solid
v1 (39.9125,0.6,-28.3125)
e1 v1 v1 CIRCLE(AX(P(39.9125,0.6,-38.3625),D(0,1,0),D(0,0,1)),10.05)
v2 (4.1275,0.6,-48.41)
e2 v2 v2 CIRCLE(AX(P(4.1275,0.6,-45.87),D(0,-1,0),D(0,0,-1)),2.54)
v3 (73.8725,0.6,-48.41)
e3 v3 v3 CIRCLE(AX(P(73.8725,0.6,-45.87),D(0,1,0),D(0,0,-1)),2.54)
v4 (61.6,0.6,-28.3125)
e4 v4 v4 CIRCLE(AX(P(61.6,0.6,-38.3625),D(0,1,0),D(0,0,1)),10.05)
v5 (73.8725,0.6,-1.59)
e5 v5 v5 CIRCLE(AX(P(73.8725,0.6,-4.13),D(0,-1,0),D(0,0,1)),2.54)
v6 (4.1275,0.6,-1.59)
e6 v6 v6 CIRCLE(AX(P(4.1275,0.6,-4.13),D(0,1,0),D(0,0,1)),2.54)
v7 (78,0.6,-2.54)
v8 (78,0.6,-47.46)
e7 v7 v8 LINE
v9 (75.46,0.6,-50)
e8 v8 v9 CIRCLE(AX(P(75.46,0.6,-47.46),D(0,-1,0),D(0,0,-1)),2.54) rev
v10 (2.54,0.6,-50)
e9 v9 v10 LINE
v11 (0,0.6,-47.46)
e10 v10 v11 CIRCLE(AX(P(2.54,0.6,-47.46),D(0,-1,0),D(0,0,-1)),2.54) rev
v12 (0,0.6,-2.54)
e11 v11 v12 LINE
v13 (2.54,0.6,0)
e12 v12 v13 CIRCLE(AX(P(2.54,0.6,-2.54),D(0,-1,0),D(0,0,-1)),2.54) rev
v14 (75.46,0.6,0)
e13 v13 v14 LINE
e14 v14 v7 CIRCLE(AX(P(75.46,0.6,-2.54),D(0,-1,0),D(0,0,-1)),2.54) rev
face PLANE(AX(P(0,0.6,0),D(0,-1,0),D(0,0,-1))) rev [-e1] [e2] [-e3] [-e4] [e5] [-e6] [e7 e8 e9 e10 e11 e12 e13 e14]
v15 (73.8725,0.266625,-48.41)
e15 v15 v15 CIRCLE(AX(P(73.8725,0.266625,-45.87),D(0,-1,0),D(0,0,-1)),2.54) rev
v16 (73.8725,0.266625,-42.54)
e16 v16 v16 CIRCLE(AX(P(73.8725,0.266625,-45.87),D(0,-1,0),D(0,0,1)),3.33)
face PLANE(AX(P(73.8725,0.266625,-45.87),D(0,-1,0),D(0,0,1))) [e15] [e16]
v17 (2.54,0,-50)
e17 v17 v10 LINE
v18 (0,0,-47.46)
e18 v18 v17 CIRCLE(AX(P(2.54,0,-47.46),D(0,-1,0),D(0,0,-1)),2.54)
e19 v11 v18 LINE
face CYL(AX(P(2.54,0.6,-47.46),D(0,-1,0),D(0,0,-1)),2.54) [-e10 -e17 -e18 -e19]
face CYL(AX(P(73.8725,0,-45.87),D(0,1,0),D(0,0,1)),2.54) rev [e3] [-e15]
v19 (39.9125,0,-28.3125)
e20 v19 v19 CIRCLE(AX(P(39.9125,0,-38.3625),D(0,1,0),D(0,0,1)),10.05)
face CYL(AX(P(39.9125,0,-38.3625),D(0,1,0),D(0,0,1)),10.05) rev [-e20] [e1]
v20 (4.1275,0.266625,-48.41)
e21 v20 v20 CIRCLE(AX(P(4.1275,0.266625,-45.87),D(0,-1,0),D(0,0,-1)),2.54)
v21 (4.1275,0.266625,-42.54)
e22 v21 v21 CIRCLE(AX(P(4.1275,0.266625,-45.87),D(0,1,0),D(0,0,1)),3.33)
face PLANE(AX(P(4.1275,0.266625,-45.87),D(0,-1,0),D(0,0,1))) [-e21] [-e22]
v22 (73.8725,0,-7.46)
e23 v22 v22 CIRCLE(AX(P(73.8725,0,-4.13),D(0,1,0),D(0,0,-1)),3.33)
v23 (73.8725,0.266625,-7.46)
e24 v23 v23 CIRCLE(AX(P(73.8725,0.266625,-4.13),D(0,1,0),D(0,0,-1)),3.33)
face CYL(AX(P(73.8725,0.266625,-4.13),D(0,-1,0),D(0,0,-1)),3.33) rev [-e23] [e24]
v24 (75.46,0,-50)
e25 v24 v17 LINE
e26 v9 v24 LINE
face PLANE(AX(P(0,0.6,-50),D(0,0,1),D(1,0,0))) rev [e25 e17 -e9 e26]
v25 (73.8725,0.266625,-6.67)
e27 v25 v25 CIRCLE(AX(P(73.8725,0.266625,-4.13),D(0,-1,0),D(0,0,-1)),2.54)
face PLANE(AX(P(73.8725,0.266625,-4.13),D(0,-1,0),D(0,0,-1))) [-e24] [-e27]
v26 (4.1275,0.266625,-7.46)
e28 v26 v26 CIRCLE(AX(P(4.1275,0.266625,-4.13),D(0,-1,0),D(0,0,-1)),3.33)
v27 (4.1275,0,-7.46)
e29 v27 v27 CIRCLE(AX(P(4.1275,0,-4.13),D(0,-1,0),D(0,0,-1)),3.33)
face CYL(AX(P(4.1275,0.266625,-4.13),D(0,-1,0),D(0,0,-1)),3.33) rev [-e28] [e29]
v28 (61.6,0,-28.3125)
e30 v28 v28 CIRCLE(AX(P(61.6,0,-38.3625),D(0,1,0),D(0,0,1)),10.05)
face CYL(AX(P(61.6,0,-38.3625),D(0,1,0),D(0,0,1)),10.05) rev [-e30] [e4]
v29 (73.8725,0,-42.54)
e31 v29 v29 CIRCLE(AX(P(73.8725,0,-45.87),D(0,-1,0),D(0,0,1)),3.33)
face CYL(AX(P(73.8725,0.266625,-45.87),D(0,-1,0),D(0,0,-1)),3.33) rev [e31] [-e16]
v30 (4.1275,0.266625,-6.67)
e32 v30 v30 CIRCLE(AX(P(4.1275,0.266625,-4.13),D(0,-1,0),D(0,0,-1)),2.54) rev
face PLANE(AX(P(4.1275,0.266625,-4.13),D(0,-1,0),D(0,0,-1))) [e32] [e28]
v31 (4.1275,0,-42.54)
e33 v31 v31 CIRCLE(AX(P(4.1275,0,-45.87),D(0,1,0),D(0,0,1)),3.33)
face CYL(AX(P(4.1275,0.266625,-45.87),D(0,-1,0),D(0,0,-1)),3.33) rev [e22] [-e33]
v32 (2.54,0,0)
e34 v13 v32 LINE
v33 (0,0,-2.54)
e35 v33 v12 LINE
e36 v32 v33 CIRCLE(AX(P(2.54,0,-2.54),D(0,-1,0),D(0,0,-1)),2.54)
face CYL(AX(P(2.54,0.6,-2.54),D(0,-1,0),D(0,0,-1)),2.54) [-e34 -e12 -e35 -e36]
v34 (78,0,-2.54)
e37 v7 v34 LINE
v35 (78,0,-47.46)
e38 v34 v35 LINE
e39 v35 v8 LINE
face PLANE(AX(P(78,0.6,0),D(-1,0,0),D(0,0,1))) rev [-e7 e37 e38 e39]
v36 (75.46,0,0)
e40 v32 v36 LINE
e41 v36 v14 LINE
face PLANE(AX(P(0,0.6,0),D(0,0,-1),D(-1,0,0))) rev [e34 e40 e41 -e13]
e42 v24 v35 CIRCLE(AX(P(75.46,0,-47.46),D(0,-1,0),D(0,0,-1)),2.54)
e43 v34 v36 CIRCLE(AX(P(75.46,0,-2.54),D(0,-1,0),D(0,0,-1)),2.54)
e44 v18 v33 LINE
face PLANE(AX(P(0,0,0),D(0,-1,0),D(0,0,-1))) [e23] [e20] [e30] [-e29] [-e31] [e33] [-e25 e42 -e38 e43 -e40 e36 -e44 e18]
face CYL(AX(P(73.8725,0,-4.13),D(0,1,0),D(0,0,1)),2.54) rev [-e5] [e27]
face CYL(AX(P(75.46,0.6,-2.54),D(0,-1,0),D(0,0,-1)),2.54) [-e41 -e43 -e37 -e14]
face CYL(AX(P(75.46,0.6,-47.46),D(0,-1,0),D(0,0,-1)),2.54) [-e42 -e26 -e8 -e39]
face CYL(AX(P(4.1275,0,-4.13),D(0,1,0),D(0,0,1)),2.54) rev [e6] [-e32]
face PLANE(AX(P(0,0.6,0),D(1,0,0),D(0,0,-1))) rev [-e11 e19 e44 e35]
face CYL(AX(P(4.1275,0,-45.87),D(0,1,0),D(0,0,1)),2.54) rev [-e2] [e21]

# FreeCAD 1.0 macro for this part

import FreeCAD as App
import Part
import Sketcher
from FreeCAD import Vector


def edges_at(feature, points):
    """Names of the edges that pass closest to the given points."""
    edges = feature.Shape.Edges
    near = lambda p: min(range(len(edges)), key=lambda i: edges[i].distToShape(Part.Vertex(*p))[0])
    return sorted({f"Edge{near(p) + 1}" for p in points})


def add_polygon(sketch, points):
    """Adds a closed chain of lines whose ends are joined by coincident constraints."""
    first, n = sketch.GeometryCount, len(points)
    for a, b in zip(points, points[1:] + points[:1]):
        sketch.addGeometry(Part.LineSegment(App.Vector(*a, 0), App.Vector(*b, 0)), False)
    for i in range(n):
        sketch.addConstraint(Sketcher.Constraint("Coincident", first + i, 2, first + (i + 1) % n, 1))

doc = App.newDocument("Part")
body = doc.addObject("PartDesign::Body", "Body")

sketch1 = body.newObject("Sketcher::SketchObject", "Sketch")
sketch1.AttachmentSupport = (doc.getObject("XZ_Plane"), [""])
sketch1.MapMode = "FlatFace"
add_polygon(sketch1, [(0, -50), (0, 0), (78, 0), (78, -50)])
sketch1.addConstraint(Sketcher.Constraint("Vertical", 0))
sketch1.addConstraint(Sketcher.Constraint("Horizontal", 1))
sketch1.addConstraint(Sketcher.Constraint("Vertical", 2))
sketch1.addConstraint(Sketcher.Constraint("Horizontal", 3))
sketch1.addConstraint(Sketcher.Constraint("Coincident", 0, 2, -1, 1))
sketch1.addConstraint(Sketcher.Constraint("DistanceX", 1, 1, 1, 2, 78.0))
sketch1.addConstraint(Sketcher.Constraint("DistanceY", 0, 1, 0, 2, 50.0))
pad1 = body.newObject("PartDesign::Pad", "Pad")
pad1.Profile = sketch1
pad1.Length = 0.6
pad1.Reversed = True
doc.recompute()

fillet = body.newObject("PartDesign::Fillet", "Fillet")
fillet.Base = (pad1, edges_at(pad1, [
    (0, 0.3, -50),
    (78, 0.3, -50),
    (78, 0.3, 0),
    (0, 0.3, 0),
]))
fillet.Radius = 2.54

sketch2 = body.newObject("Sketcher::SketchObject", "Sketch001")
sketch2.AttachmentSupport = (doc.getObject("XZ_Plane"), [""])
sketch2.MapMode = "FlatFace"
sketch2.AttachmentOffset = App.Placement(Vector(0, 0, -0.6), App.Rotation())
sketch2.addGeometry(Part.Circle(Vector(4.1, -4.1, 0), Vector(0, 0, 1), 2.5), False)
sketch2.addConstraint(Sketcher.Constraint("Diameter", 0, 5.08))
sketch2.addConstraint(Sketcher.Constraint("DistanceY", 0, 3, -1, 1, 4.13))
sketch2.addConstraint(Sketcher.Constraint("DistanceX", -1, 1, 0, 3, 4.1275))
pocket1 = body.newObject("PartDesign::Pocket", "Pocket")
pocket1.Profile = sketch2
pocket1.Type = "ThroughAll"
pocket1.Reversed = True

sketch3 = body.newObject("Sketcher::SketchObject", "Sketch002")
sketch3.AttachmentSupport = (doc.getObject("XZ_Plane"), [""])
sketch3.MapMode = "FlatFace"
sketch3.addGeometry(Part.Circle(Vector(4.1, -4.1, 0), Vector(0, 0, 1), 3.3), False)
sketch3.addConstraint(Sketcher.Constraint("Diameter", 0, 6.66))
sketch3.addConstraint(Sketcher.Constraint("DistanceY", 0, 3, -1, 1, 4.13))
sketch3.addConstraint(Sketcher.Constraint("DistanceX", -1, 1, 0, 3, 4.1275))
pocket2 = body.newObject("PartDesign::Pocket", "Pocket001")
pocket2.Profile = sketch3
pocket2.Length = 0.266625
doc.recompute()

datumplane = body.newObject("PartDesign::Plane", "DatumPlane")
datumplane.AttachmentSupport = (doc.getObject("XY_Plane"), [""])
datumplane.MapMode = "FlatFace"
datumplane.AttachmentOffset = App.Placement(Vector(0, 0, -25), App.Rotation())
mirrored = body.newObject("PartDesign::Mirrored", "Mirrored")
mirrored.Originals = [pocket1, pocket2]
mirrored.MirrorPlane = (datumplane, [""])
body.Tip = mirrored
doc.recompute()

datumplane2 = body.newObject("PartDesign::Plane", "DatumPlane001")
datumplane2.AttachmentSupport = (doc.getObject("YZ_Plane"), [""])
datumplane2.MapMode = "FlatFace"
datumplane2.AttachmentOffset = App.Placement(Vector(0, 0, 39), App.Rotation())
mirrored2 = body.newObject("PartDesign::Mirrored", "Mirrored001")
mirrored2.Originals = [pocket1, pocket2]
mirrored2.MirrorPlane = (datumplane2, [""])
body.Tip = mirrored2

sketch4 = body.newObject("Sketcher::SketchObject", "Sketch003")
sketch4.AttachmentSupport = (doc.getObject("XZ_Plane"), [""])
sketch4.MapMode = "FlatFace"
sketch4.AttachmentOffset = App.Placement(Vector(0, 0, -0.6), App.Rotation())
sketch4.addGeometry(Part.Circle(Vector(73.9, -45.9, 0), Vector(0, 0, 1), 2.5), False)
sketch4.addConstraint(Sketcher.Constraint("Diameter", 0, 5.08))
sketch4.addConstraint(Sketcher.Constraint("DistanceY", 0, 3, -1, 1, 45.87))
sketch4.addConstraint(Sketcher.Constraint("DistanceX", -1, 1, 0, 3, 73.8725))
pocket3 = body.newObject("PartDesign::Pocket", "Pocket002")
pocket3.Profile = sketch4
pocket3.Type = "ThroughAll"
pocket3.Reversed = True

sketch5 = body.newObject("Sketcher::SketchObject", "Sketch004")
sketch5.AttachmentSupport = (doc.getObject("XZ_Plane"), [""])
sketch5.MapMode = "FlatFace"
sketch5.addGeometry(Part.Circle(Vector(73.9, -45.9, 0), Vector(0, 0, 1), 3.3), False)
sketch5.addConstraint(Sketcher.Constraint("Diameter", 0, 6.66))
sketch5.addConstraint(Sketcher.Constraint("DistanceY", 0, 3, -1, 1, 45.87))
sketch5.addConstraint(Sketcher.Constraint("DistanceX", -1, 1, 0, 3, 73.8725))
pocket4 = body.newObject("PartDesign::Pocket", "Pocket003")
pocket4.Profile = sketch5
pocket4.Length = 0.266625

sketch6 = body.newObject("Sketcher::SketchObject", "Sketch005")
sketch6.AttachmentSupport = (doc.getObject("XZ_Plane"), [""])
sketch6.MapMode = "FlatFace"
sketch6.AttachmentOffset = App.Placement(Vector(0, 0, -0.6), App.Rotation())
sketch6.addGeometry(Part.Circle(Vector(62, -38, 0), Vector(0, 0, 1), 10), False)
sketch6.addGeometry(Part.Circle(Vector(40, -38, 0), Vector(0, 0, 1), 10), False)
sketch6.addConstraint(Sketcher.Constraint("Equal", 0, 1))
sketch6.addConstraint(Sketcher.Constraint("Horizontal", 0, 3, 1, 3))
sketch6.addConstraint(Sketcher.Constraint("Diameter", 0, 20.1))
sketch6.addConstraint(Sketcher.Constraint("DistanceX", -1, 1, 0, 3, 61.6))
sketch6.addConstraint(Sketcher.Constraint("DistanceY", 0, 3, -1, 1, 38.3625))
sketch6.addConstraint(Sketcher.Constraint("DistanceX", -1, 1, 1, 3, 39.9125))
pocket5 = body.newObject("PartDesign::Pocket", "Pocket004")
pocket5.Profile = sketch6
pocket5.Type = "ThroughAll"
pocket5.Reversed = True

doc.recompute()
